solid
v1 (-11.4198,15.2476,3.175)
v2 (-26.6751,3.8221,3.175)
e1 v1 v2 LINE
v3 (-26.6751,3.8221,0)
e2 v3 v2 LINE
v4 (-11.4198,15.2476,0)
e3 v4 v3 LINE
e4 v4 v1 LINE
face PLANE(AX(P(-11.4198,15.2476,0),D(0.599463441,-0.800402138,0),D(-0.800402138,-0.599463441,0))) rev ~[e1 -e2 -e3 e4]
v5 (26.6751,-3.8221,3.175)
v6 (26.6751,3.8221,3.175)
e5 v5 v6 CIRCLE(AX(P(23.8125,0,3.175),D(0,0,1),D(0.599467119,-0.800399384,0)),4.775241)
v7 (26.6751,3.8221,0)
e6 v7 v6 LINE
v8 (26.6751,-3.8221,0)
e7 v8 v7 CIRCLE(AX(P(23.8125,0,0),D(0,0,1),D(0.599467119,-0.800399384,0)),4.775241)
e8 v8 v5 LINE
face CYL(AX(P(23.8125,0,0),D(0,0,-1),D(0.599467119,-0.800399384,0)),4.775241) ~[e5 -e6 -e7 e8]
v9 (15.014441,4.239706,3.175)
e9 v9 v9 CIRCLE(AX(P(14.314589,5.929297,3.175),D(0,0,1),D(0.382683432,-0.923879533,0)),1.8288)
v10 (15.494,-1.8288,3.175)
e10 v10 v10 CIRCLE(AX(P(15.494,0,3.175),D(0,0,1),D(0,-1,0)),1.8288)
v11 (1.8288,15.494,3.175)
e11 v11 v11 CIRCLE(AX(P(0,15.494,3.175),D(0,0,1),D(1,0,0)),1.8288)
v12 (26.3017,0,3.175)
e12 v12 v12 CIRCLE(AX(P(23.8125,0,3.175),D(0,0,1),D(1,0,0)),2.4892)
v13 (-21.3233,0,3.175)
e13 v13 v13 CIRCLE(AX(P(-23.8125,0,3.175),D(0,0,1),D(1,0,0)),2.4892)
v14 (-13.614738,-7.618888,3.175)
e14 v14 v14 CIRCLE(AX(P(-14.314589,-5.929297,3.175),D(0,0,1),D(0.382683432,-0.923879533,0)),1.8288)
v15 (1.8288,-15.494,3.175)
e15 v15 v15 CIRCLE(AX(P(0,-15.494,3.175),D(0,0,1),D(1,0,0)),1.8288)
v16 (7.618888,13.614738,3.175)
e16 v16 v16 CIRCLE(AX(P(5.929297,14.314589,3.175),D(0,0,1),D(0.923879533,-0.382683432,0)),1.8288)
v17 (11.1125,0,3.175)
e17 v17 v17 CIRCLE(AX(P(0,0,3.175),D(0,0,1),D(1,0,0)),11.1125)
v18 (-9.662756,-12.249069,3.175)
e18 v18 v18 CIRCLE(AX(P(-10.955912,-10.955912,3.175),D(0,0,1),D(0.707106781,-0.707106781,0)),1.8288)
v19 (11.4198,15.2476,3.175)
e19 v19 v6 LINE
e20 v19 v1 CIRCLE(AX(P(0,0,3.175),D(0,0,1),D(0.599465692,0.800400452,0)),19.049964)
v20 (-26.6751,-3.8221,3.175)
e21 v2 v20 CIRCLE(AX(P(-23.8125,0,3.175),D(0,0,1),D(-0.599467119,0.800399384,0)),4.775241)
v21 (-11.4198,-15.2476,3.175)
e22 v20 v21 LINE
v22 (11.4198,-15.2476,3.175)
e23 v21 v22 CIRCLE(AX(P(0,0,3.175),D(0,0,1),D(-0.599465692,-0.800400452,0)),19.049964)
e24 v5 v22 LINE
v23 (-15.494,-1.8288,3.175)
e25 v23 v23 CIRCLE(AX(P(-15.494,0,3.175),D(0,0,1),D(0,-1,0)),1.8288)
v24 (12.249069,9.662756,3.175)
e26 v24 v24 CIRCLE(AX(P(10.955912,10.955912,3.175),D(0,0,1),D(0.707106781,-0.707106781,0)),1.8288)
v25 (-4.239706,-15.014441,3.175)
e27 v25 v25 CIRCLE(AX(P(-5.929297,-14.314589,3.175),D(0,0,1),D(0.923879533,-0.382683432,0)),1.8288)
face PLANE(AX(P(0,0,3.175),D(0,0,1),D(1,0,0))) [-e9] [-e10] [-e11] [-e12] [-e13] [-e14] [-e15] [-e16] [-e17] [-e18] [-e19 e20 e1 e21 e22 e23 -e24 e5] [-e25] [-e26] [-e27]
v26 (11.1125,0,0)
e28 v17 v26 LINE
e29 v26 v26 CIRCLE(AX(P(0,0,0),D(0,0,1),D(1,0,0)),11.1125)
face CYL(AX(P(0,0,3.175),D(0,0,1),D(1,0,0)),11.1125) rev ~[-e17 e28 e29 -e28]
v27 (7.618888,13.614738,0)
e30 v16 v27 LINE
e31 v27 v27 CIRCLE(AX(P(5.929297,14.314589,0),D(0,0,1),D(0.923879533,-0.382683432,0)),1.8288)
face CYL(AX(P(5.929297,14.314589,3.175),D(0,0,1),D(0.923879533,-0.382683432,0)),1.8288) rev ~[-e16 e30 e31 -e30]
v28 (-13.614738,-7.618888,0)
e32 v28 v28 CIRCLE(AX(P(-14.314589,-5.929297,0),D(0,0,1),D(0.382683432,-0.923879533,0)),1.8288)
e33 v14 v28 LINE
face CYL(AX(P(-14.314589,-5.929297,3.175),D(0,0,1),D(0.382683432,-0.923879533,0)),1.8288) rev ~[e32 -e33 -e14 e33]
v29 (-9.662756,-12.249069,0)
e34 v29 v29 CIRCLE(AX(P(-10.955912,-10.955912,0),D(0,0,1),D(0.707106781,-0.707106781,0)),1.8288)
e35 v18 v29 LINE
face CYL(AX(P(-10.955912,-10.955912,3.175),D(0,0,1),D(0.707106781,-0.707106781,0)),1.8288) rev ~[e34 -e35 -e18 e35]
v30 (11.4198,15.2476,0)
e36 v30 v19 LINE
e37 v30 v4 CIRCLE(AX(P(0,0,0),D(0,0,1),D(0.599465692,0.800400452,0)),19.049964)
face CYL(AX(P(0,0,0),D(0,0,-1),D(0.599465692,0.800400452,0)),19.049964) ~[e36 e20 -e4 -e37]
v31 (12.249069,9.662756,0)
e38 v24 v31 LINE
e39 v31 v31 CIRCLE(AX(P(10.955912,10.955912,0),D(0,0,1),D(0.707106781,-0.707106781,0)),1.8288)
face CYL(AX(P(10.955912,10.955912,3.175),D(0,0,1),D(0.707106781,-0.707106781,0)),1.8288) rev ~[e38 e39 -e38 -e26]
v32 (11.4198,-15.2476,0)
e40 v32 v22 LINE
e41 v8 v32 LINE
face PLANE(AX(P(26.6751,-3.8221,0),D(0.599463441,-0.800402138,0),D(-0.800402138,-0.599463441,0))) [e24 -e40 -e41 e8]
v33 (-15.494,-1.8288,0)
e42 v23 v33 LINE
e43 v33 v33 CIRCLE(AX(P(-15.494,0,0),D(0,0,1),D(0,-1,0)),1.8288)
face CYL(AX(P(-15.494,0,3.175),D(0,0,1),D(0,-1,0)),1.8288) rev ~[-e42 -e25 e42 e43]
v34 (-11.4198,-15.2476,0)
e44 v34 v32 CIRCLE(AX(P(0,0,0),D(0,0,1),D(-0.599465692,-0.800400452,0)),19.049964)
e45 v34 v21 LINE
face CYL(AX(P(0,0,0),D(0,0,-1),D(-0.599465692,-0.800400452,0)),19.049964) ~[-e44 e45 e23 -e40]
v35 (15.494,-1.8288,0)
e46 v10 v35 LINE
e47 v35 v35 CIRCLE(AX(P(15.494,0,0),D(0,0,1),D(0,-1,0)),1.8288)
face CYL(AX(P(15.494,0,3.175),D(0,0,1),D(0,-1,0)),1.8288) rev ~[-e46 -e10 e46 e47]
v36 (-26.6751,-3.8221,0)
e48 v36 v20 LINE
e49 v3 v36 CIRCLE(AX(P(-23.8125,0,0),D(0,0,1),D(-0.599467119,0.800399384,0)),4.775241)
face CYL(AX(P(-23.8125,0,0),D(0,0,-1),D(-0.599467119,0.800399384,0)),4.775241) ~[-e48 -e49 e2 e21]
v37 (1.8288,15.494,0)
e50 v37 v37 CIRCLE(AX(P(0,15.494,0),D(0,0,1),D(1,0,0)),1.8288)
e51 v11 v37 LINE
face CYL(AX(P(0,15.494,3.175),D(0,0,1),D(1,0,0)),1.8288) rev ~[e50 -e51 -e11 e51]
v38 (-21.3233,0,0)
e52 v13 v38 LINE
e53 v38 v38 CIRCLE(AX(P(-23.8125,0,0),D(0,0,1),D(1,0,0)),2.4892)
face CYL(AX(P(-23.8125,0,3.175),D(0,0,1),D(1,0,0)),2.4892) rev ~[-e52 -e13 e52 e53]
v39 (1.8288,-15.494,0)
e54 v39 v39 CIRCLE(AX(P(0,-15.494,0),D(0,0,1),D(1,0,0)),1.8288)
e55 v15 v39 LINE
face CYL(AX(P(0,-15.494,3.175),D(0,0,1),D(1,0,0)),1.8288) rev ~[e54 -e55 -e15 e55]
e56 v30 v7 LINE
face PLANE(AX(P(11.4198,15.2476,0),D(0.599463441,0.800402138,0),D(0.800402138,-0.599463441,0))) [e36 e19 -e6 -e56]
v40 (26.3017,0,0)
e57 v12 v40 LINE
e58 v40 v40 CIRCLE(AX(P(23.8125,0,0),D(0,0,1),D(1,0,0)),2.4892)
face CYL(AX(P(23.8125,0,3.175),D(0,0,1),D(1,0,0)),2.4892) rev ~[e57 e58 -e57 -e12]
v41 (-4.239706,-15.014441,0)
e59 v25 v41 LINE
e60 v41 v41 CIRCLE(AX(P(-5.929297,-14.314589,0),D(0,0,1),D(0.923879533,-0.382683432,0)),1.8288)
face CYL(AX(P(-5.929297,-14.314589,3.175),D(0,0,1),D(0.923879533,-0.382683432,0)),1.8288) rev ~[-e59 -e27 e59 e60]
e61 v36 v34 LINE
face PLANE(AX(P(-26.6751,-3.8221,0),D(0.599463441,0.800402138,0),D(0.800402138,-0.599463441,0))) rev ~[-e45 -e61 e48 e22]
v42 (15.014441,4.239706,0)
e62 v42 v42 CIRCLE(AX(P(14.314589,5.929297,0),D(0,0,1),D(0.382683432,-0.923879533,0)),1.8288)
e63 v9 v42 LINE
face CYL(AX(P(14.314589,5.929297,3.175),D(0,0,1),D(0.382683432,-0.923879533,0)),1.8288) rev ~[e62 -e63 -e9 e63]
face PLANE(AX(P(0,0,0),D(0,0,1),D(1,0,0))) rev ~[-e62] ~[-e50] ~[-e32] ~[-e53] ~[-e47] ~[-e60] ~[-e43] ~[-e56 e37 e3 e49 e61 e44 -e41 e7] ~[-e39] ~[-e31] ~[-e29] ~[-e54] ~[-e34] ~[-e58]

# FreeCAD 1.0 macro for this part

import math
import FreeCAD as App
import Part
import Sketcher
from FreeCAD import Vector
Q = App.Units.Quantity

doc = App.newDocument("Part")
body = doc.addObject("PartDesign::Body", "Body")

# Sketch on XY plane
sketch1 = doc.addObject("Sketcher::SketchObject", "Sketch")
body.addObject(sketch1)
sketch1.AttachmentSupport = (doc.XY_Plane, [""])
sketch1.MapMode = "FlatFace"
sketch1.addGeometry(Part.ArcOfCircle(Part.Circle(Vector(0, 0, 0), Vector(0, 0, 1), 19), math.radians(53), math.radians(127)), False)
sketch1.addGeometry(Part.LineSegment(Vector(-11.4, 15.2, 0), Vector(-26.7, 3.8, 0)), False)
sketch1.addGeometry(Part.ArcOfCircle(Part.Circle(Vector(-23.8, 0, 0), Vector(0, 0, 1), 4.8), math.radians(127), math.radians(233)), False)
sketch1.addGeometry(Part.LineSegment(Vector(-26.7, -3.8, 0), Vector(-11.4, -15.2, 0)), False)
sketch1.addGeometry(Part.ArcOfCircle(Part.Circle(Vector(0, 0, 0), Vector(0, 0, 1), 19), math.radians(-127), math.radians(-53)), False)
sketch1.addGeometry(Part.LineSegment(Vector(11.4, -15.2, 0), Vector(26.7, -3.8, 0)), False)
sketch1.addGeometry(Part.ArcOfCircle(Part.Circle(Vector(23.8, 0, 0), Vector(0, 0, 1), 4.8), math.radians(-53), math.radians(53)), False)
sketch1.addGeometry(Part.LineSegment(Vector(26.7, 3.8, 0), Vector(11.4, 15.2, 0)), False)
sketch1.addConstraint(Sketcher.Constraint("Tangent", 0, 2, 1, 1))
sketch1.addConstraint(Sketcher.Constraint("Tangent", 1, 2, 2, 1))
sketch1.addConstraint(Sketcher.Constraint("Tangent", 2, 2, 3, 1))
sketch1.addConstraint(Sketcher.Constraint("Tangent", 3, 2, 4, 1))
sketch1.addConstraint(Sketcher.Constraint("Tangent", 4, 2, 5, 1))
sketch1.addConstraint(Sketcher.Constraint("Tangent", 5, 2, 6, 1))
sketch1.addConstraint(Sketcher.Constraint("Tangent", 6, 2, 7, 1))
sketch1.addConstraint(Sketcher.Constraint("Tangent", 7, 2, 0, 1))
sketch1.addConstraint(Sketcher.Constraint("Coincident", 0, 3, -1, 1))
sketch1.addConstraint(Sketcher.Constraint("Coincident", 4, 3, -1, 1))
sketch1.addConstraint(Sketcher.Constraint("Equal", 0, 4))
sketch1.addConstraint(Sketcher.Constraint("Equal", 2, 6))
sketch1.addConstraint(Sketcher.Constraint("Symmetric", 2, 3, 6, 3, -1, 1))
sketch1.addConstraint(Sketcher.Constraint("PointOnObject", 2, 3, -1))
sketch1.addConstraint(Sketcher.Constraint("Radius", 2, Q("0.188 in")))
sketch1.addConstraint(Sketcher.Constraint("Radius", 0, Q("0.75 in")))
sketch1.addConstraint(Sketcher.Constraint("DistanceX", 2, 3, 6, 3, Q("1.875 in")))
pad1 = doc.addObject("PartDesign::Pad", "Pad")
body.addObject(pad1)
pad1.Profile = sketch1
pad1.Length = Q("0.125 in")

# Sketch on XY plane
sketch2 = doc.addObject("Sketcher::SketchObject", "Sketch001")
body.addObject(sketch2)
sketch2.AttachmentSupport = (doc.XY_Plane, [""])
sketch2.MapMode = "FlatFace"
sketch2.AttachmentOffset = App.Placement(Vector(0, 0, 0.125 * 25.4), App.Rotation())
sketch2.addGeometry(Part.Circle(Vector(-23.8, 0, 0), Vector(0, 0, 1), 2.5), False)
sketch2.addGeometry(Part.Circle(Vector(23.8, 0, 0), Vector(0, 0, 1), 2.5), False)
sketch2.addGeometry(Part.Circle(Vector(0, 0, 0), Vector(0, 0, 1), 11.1), False)
sketch2.addConstraint(Sketcher.Constraint("Coincident", 2, 3, -1, 1))
sketch2.addConstraint(Sketcher.Constraint("Equal", 0, 1))
sketch2.addConstraint(Sketcher.Constraint("Symmetric", 0, 3, 1, 3, -1, 1))
sketch2.addConstraint(Sketcher.Constraint("PointOnObject", 0, 3, -1))
sketch2.addConstraint(Sketcher.Constraint("Diameter", 0, Q("0.196 in")))
sketch2.addConstraint(Sketcher.Constraint("Diameter", 2, Q("0.875 in")))
sketch2.addConstraint(Sketcher.Constraint("DistanceX", 0, 3, -1, 1, Q("0.9375 in")))
pocket1 = doc.addObject("PartDesign::Pocket", "Pocket")
body.addObject(pocket1)
pocket1.Profile = sketch2
pocket1.Length = Q("0.125 in")

# Sketch on XY plane
sketch3 = doc.addObject("Sketcher::SketchObject", "Sketch002")
body.addObject(sketch3)
sketch3.AttachmentSupport = (doc.XY_Plane, [""])
sketch3.MapMode = "FlatFace"
sketch3.AttachmentOffset = App.Placement(Vector(0, 0, 0.125 * 25.4), App.Rotation())
sketch3.addGeometry(Part.Circle(Vector(0, 15.5, 0), Vector(0, 0, 1), 1.8), False)
sketch3.addGeometry(Part.Circle(Vector(0, -15.5, 0), Vector(0, 0, 1), 1.8), False)
sketch3.addConstraint(Sketcher.Constraint("Equal", 0, 1))
sketch3.addConstraint(Sketcher.Constraint("Symmetric", 0, 3, 1, 3, -1, 1))
sketch3.addConstraint(Sketcher.Constraint("PointOnObject", 0, 3, -2))
sketch3.addConstraint(Sketcher.Constraint("Diameter", 0, Q("0.144 in")))
sketch3.addConstraint(Sketcher.Constraint("DistanceY", -1, 1, 0, 3, Q("0.61 in")))
pocket2 = doc.addObject("PartDesign::Pocket", "Pocket001")
body.addObject(pocket2)
pocket2.Profile = sketch3
pocket2.Length = Q("0.125 in")
doc.recompute()

polarpattern = doc.addObject("PartDesign::PolarPattern", "PolarPattern")
body.addObject(polarpattern)
polarpattern.Originals = [pocket2]
polarpattern.Axis = (doc.Z_Axis, [""])
polarpattern.Angle = 90
polarpattern.Occurrences = 5
polarpattern.Reversed = True
body.Tip = polarpattern

doc.recompute()
